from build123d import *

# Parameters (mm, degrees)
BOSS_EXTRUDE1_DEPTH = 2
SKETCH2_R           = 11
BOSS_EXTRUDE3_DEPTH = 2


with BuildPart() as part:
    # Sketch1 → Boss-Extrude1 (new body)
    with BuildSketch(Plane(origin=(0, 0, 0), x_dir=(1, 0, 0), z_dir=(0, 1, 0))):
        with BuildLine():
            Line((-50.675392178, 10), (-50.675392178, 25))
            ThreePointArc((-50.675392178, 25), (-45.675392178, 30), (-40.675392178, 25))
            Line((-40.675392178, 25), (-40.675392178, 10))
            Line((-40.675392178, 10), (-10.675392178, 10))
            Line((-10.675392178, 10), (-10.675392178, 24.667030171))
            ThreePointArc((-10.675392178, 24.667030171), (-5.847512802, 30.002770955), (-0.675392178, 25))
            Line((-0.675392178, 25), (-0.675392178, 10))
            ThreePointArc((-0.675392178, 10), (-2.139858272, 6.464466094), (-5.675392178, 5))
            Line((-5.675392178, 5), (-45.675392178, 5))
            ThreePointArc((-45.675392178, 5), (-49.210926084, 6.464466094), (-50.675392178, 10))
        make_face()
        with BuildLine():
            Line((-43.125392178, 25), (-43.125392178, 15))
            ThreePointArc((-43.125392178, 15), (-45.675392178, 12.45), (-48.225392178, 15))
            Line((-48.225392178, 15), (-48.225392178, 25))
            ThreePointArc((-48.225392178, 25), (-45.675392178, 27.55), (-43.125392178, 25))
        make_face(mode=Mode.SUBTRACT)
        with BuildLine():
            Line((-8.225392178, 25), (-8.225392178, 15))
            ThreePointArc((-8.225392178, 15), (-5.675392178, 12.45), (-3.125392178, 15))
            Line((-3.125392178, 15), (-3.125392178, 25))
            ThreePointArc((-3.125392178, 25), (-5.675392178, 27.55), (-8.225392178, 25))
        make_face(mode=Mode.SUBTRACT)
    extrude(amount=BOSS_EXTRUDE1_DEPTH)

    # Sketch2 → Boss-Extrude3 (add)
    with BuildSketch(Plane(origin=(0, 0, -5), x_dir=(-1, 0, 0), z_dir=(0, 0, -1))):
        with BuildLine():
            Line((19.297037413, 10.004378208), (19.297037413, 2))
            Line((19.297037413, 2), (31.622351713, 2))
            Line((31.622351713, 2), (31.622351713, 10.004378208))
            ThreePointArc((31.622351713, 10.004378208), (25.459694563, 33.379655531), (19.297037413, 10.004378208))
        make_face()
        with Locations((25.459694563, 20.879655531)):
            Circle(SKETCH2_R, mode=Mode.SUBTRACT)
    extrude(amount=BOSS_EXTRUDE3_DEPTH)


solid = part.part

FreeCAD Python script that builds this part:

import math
import FreeCAD as App
import Part
import Sketcher

V = App.Vector
Q = App.Units.Quantity

doc = App.newDocument("Part")
body = doc.addObject("PartDesign::Body", "Body")

# Sketch on XZ plane
sketch1 = doc.addObject("Sketcher::SketchObject", "Sketch")
body.addObject(sketch1)
sketch1.AttachmentSupport = (doc.XZ_Plane, [""])
sketch1.MapMode = "FlatFace"
sketch1.addGeometry([
    Part.LineSegment(V(-50.675392, -25, 0), V(-50.675392, -10, 0)),  # 0
    Part.ArcOfCircle(Part.Circle(V(-45.675392, -10, 0), V(0, 0, 1), 5), math.radians(90), math.radians(180)),  # 1
    Part.LineSegment(V(-45.675392, -5, 0), V(-5.675392, -5, 0)),  # 2
    Part.ArcOfCircle(Part.Circle(V(-5.675392, -10, 0), V(0, 0, 1), 5), math.radians(0), math.radians(90)),  # 3
    Part.LineSegment(V(-0.675392, -10, 0), V(-0.675392, -25, 0)),  # 4
    Part.ArcOfCircle(Part.Circle(V(-5.680936, -25, 0), V(0, 0, 1), 5.005543), math.radians(176.185856), math.radians(360)),  # 5
    Part.LineSegment(V(-10.675392, -24.66703, 0), V(-10.675392, -10, 0)),  # 6
    Part.LineSegment(V(-10.675392, -10, 0), V(-40.675392, -10, 0)),  # 7
    Part.LineSegment(V(-40.675392, -10, 0), V(-40.675392, -25, 0)),  # 8
    Part.ArcOfCircle(Part.Circle(V(-45.675392, -25, 0), V(0, 0, 1), 5), math.radians(180), math.radians(360)),  # 9
    Part.ArcOfCircle(Part.Circle(V(-5.675392, -25, 0), V(0, 0, 1), 2.55), math.radians(180), math.radians(360)),  # 10
    Part.LineSegment(V(-3.125392, -25, 0), V(-3.125392, -15, 0)),  # 11
    Part.ArcOfCircle(Part.Circle(V(-5.675392, -15, 0), V(0, 0, 1), 2.55), math.radians(0), math.radians(180)),  # 12
    Part.LineSegment(V(-8.225392, -15, 0), V(-8.225392, -25, 0)),  # 13
    Part.LineSegment(V(-43.125392, -25, 0), V(-43.125392, -15, 0)),  # 14
    Part.ArcOfCircle(Part.Circle(V(-45.675392, -15, 0), V(0, 0, 1), 2.55), math.radians(0), math.radians(180)),  # 15
    Part.LineSegment(V(-48.225392, -15, 0), V(-48.225392, -25, 0)),  # 16
    Part.ArcOfCircle(Part.Circle(V(-45.675392, -25, 0), V(0, 0, 1), 2.55), math.radians(180), math.radians(360)),  # 17
], False)
sketch1.addConstraint([
    Sketcher.Constraint("Tangent", 0, 2, 1, 2),
    Sketcher.Constraint("Tangent", 1, 1, 2, 1),
    Sketcher.Constraint("Tangent", 2, 2, 3, 2),
    Sketcher.Constraint("Tangent", 3, 1, 4, 1),
    Sketcher.Constraint("Tangent", 4, 2, 5, 2),
    Sketcher.Constraint("Coincident", 5, 1, 6, 1),
    Sketcher.Constraint("Coincident", 6, 2, 7, 1),
    Sketcher.Constraint("Coincident", 7, 2, 8, 1),
    Sketcher.Constraint("Tangent", 8, 2, 9, 2),
    Sketcher.Constraint("Tangent", 9, 1, 0, 1),
    Sketcher.Constraint("Tangent", 10, 2, 11, 1),
    Sketcher.Constraint("Tangent", 11, 2, 12, 1),
    Sketcher.Constraint("Tangent", 12, 2, 13, 1),
    Sketcher.Constraint("Tangent", 13, 2, 10, 1),
    Sketcher.Constraint("Tangent", 14, 2, 15, 1),
    Sketcher.Constraint("Tangent", 15, 2, 16, 1),
    Sketcher.Constraint("Tangent", 16, 2, 17, 1),
    Sketcher.Constraint("Tangent", 17, 2, 14, 1),
    Sketcher.Constraint("Vertical", 0),
    Sketcher.Constraint("Horizontal", 2),
    Sketcher.Constraint("Vertical", 4),
    Sketcher.Constraint("Vertical", 6),
    Sketcher.Constraint("Horizontal", 7),
    Sketcher.Constraint("Vertical", 8),
    Sketcher.Constraint("Vertical", 11),
    Sketcher.Constraint("Vertical", 13),
    Sketcher.Constraint("Vertical", 14),
    Sketcher.Constraint("Vertical", 16),
    Sketcher.Constraint("Coincident", 17, 3, 9, 3),
    Sketcher.Constraint("Equal", 1, 3),
    Sketcher.Constraint("Equal", 3, 9),
    Sketcher.Constraint("Equal", 12, 15),
    Sketcher.Constraint("Horizontal", 5, 3, 9, 3),
    Sketcher.Constraint("Horizontal", 9, 3, 10, 3),
    Sketcher.Constraint("Horizontal", 12, 3, 15, 3),
    Sketcher.Constraint("Horizontal", 3, 1, 6, 2),
    Sketcher.Constraint("Vertical", 3, 3, 10, 3),
    Sketcher.Constraint("Radius", 1, Q("5 mm")),
    Sketcher.Constraint("DistanceX", 2, 1, 2, 2, Q("40 mm")),
    Sketcher.Constraint("DistanceX", 7, 2, 7, 1, Q("30 mm")),
    Sketcher.Constraint("DistanceY", 0, 1, 0, 2, Q("15 mm")),
    Sketcher.Constraint("DistanceY", 11, 1, 11, 2, Q("10 mm")),
    Sketcher.Constraint("Radius", 10, Q("2.55 mm")),
    Sketcher.Constraint("DistanceY", 1, 3, -1, 1, Q("10 mm")),
    Sketcher.Constraint("Radius", 5, Q("5.005543 mm")),
    Sketcher.Constraint("DistanceX", 1, 3, -1, 1, Q("45.675392 mm")),
])
pad1 = doc.addObject("PartDesign::Pad", "Pad")
body.addObject(pad1)
pad1.Profile = sketch1
pad1.Length = 2
pad1.Reversed = True

# Sketch on XY plane
sketch2 = doc.addObject("Sketcher::SketchObject", "Sketch001")
body.addObject(sketch2)
sketch2.AttachmentSupport = (doc.XY_Plane, [""])
sketch2.MapMode = "FlatFace"
sketch2.AttachmentOffset = App.Placement(V(0, 0, -5), App.Rotation())
sketch2.addGeometry([
    Part.LineSegment(V(-19.297037, 10.004378, 0), V(-19.297037, 2, 0)),  # 0
    Part.LineSegment(V(-19.297037, 2, 0), V(-31.622352, 2, 0)),  # 1
    Part.LineSegment(V(-31.622352, 2, 0), V(-31.622352, 10.004378, 0)),  # 2
    Part.ArcOfCircle(Part.Circle(V(-25.459695, 20.879656, 0), V(0, 0, 1), 12.5), math.radians(-60.461218), math.radians(240.461218)),  # 3
    Part.Circle(V(-25.459695, 20.879656, 0), V(0, 0, 1), 11),  # 4
], False)
sketch2.addConstraint([
    Sketcher.Constraint("Coincident", 0, 2, 1, 1),
    Sketcher.Constraint("Coincident", 1, 2, 2, 1),
    Sketcher.Constraint("Coincident", 2, 2, 3, 2),
    Sketcher.Constraint("Coincident", 3, 1, 0, 1),
    Sketcher.Constraint("Vertical", 0),
    Sketcher.Constraint("Horizontal", 1),
    Sketcher.Constraint("Vertical", 2),
    Sketcher.Constraint("Coincident", 4, 3, 3, 3),
    Sketcher.Constraint("Horizontal", 2, 2, 3, 1),
    Sketcher.Constraint("Diameter", 4, Q("22 mm")),
    Sketcher.Constraint("Radius", 3, Q("12.5 mm")),
    Sketcher.Constraint("DistanceY", -1, 1, 0, 2, Q("2 mm")),
    Sketcher.Constraint("DistanceY", 0, 2, 0, 1, Q("8.004378 mm")),
    Sketcher.Constraint("DistanceX", 1, 2, 1, 1, Q("12.325314 mm")),
    Sketcher.Constraint("DistanceX", 1, 2, -1, 1, Q("31.622352 mm")),
])
pad2 = doc.addObject("PartDesign::Pad", "Pad001")
body.addObject(pad2)
pad2.Profile = sketch2
pad2.Length = 2
pad2.Reversed = True

doc.recompute()
